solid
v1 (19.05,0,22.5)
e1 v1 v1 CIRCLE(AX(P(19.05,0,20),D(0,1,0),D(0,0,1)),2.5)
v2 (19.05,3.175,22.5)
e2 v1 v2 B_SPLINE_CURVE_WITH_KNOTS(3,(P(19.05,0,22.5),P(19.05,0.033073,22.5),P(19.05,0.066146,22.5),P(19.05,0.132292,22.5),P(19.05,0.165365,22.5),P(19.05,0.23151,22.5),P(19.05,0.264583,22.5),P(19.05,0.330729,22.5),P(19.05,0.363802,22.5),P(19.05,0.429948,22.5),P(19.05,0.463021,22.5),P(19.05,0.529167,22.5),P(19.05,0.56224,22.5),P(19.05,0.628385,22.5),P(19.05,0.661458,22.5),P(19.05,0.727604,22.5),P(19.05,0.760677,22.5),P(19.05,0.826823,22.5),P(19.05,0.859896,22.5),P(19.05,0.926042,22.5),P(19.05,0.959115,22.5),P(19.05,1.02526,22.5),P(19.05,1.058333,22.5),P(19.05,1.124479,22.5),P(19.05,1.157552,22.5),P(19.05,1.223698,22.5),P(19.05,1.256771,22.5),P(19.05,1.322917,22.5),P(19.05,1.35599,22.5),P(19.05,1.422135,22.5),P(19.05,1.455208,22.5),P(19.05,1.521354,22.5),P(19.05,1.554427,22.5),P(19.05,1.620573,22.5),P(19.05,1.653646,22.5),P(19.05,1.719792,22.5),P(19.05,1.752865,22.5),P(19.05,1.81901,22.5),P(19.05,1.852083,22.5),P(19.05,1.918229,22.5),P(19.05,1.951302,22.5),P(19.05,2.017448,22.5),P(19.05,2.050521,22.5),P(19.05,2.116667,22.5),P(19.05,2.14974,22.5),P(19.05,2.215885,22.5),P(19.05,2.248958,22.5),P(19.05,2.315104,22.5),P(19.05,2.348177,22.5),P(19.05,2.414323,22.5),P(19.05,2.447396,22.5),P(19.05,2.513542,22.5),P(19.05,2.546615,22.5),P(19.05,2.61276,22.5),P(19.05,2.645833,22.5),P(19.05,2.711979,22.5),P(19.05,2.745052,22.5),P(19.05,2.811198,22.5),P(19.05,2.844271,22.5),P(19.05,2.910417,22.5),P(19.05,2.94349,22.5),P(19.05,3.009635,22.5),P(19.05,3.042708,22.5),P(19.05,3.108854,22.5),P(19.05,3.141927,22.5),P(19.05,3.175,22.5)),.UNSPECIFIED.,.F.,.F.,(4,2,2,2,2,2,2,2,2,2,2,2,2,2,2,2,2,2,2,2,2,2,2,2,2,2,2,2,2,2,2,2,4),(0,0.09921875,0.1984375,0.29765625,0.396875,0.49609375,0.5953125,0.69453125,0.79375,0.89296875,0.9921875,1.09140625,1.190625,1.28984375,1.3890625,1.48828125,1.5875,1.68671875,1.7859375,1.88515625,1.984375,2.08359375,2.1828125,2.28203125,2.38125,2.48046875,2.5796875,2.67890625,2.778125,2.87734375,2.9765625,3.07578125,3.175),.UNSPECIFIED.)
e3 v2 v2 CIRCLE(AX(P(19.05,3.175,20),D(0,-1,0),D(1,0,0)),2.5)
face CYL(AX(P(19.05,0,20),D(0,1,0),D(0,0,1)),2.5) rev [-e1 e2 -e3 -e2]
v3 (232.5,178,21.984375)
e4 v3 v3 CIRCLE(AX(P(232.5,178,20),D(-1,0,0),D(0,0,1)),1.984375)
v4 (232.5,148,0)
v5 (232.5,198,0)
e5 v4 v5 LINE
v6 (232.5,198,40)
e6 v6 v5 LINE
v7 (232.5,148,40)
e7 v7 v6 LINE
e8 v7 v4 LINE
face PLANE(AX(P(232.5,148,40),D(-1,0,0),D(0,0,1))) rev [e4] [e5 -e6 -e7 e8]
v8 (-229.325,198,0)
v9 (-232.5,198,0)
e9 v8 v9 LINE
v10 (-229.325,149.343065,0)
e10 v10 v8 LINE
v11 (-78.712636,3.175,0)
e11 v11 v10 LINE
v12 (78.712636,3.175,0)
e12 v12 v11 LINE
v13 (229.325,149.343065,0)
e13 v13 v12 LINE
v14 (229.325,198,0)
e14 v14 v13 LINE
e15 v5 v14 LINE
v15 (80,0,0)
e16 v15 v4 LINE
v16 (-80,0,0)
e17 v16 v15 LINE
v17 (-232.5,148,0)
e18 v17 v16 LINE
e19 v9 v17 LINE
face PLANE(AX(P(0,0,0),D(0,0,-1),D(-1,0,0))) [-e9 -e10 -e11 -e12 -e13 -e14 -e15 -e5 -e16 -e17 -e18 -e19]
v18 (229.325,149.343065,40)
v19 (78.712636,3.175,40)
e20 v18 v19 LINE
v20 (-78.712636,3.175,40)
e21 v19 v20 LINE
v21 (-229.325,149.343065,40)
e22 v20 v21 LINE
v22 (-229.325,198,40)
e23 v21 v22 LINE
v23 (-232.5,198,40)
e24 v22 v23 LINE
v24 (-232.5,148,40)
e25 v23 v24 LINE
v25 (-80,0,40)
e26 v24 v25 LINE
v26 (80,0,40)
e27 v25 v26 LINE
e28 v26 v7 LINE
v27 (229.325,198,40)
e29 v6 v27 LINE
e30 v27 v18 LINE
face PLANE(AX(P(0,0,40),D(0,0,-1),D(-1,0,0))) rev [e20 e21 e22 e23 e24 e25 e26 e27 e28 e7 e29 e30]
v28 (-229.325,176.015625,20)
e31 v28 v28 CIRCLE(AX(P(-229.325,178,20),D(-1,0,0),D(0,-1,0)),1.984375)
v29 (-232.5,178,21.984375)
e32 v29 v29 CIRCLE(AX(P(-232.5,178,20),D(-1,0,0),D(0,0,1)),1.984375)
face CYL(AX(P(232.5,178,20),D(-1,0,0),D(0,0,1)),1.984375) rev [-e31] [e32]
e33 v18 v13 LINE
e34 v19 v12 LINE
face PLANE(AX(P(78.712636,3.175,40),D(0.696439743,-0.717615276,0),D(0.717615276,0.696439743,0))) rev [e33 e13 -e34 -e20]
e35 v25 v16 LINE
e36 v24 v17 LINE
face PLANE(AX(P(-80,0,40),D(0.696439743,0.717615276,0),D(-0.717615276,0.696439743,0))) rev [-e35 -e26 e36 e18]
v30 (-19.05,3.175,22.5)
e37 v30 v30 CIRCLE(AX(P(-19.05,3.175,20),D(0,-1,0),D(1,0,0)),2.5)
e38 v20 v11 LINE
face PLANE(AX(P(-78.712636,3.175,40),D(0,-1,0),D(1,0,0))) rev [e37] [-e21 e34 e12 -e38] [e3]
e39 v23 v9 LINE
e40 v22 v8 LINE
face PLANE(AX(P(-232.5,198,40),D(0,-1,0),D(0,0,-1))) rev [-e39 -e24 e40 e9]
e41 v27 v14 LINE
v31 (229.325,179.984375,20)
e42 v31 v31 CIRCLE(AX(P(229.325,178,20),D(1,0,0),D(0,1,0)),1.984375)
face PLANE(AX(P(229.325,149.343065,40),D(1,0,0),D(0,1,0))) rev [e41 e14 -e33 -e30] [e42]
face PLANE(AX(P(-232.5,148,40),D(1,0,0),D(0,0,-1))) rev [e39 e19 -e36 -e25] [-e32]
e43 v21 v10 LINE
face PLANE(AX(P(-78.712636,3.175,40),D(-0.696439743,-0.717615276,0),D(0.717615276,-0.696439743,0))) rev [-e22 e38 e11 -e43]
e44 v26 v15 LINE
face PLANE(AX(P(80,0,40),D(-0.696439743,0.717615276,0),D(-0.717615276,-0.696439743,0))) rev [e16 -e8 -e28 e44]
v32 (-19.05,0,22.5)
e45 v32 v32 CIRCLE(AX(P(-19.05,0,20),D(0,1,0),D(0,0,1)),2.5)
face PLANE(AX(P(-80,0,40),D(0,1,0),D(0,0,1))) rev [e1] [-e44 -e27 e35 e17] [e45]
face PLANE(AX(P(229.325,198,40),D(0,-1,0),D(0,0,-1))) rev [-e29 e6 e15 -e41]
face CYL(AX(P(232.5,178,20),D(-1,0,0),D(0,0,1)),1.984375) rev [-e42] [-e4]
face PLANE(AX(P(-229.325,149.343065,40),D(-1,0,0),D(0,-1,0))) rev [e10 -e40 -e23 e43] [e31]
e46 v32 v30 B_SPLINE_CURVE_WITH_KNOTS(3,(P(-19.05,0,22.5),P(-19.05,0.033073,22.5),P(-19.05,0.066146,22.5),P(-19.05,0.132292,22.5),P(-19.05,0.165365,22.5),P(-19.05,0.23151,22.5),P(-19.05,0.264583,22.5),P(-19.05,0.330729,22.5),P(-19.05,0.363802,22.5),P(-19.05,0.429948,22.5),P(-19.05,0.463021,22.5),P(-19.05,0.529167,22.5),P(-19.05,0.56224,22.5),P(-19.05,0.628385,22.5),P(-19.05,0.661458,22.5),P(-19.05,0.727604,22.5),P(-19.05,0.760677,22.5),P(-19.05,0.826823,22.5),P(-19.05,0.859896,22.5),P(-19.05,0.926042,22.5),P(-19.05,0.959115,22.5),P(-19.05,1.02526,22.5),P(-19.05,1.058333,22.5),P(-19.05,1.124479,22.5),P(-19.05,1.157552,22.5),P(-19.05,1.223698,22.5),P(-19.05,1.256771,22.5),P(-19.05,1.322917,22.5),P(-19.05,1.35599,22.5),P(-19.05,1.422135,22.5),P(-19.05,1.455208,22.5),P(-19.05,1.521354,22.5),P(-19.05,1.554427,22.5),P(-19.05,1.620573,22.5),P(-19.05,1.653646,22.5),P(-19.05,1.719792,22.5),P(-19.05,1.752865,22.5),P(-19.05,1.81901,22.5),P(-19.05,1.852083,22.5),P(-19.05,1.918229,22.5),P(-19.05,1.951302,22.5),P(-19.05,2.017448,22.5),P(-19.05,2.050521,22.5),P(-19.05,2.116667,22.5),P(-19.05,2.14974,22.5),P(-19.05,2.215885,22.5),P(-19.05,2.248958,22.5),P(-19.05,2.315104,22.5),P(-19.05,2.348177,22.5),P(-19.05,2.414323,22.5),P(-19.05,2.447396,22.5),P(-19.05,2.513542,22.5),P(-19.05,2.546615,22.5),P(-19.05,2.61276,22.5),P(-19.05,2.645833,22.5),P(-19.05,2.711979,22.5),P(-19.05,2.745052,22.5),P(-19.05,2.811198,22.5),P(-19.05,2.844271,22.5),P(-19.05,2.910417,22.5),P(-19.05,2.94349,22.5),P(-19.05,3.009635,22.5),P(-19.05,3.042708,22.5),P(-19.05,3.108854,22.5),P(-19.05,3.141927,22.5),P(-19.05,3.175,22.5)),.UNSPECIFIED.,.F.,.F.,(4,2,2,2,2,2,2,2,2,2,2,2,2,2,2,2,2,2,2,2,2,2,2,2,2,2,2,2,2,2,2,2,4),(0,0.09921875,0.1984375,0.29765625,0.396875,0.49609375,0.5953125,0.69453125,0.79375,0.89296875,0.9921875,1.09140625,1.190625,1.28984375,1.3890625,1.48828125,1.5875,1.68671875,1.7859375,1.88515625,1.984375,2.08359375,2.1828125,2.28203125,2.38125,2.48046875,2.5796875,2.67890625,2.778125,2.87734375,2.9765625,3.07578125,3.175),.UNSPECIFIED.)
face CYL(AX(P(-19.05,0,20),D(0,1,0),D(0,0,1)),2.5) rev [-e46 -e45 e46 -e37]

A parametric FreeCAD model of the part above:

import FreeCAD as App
import Part
import Sketcher
from FreeCAD import Vector
Q = App.Units.Quantity

doc = App.newDocument("Part")
body = doc.addObject("PartDesign::Body", "Body")

# Sketch on XY plane
sketch1 = body.newObject("Sketcher::SketchObject", "Sketch")
sketch1.AttachmentSupport = (doc.getObject("XY_Plane"), [""])
sketch1.MapMode = "FlatFace"
sketch1.addGeometry(Part.LineSegment(Vector(-80, 0, 0), Vector(80, 0, 0)), False)
sketch1.addGeometry(Part.LineSegment(Vector(80, 0, 0), Vector(232.5, 148, 0)), False)
sketch1.addGeometry(Part.LineSegment(Vector(232.5, 148, 0), Vector(232.5, 198, 0)), False)
sketch1.addGeometry(Part.LineSegment(Vector(232.5, 198, 0), Vector(229.3, 198, 0)), False)
sketch1.addGeometry(Part.LineSegment(Vector(229.3, 198, 0), Vector(229.3, 149.3, 0)), False)
sketch1.addGeometry(Part.LineSegment(Vector(229.3, 149.3, 0), Vector(78.7, 3.2, 0)), False)
sketch1.addGeometry(Part.LineSegment(Vector(78.7, 3.2, 0), Vector(-78.7, 3.2, 0)), False)
sketch1.addGeometry(Part.LineSegment(Vector(-78.7, 3.2, 0), Vector(-229.3, 149.3, 0)), False)
sketch1.addGeometry(Part.LineSegment(Vector(-229.3, 149.3, 0), Vector(-229.3, 198, 0)), False)
sketch1.addGeometry(Part.LineSegment(Vector(-229.3, 198, 0), Vector(-232.5, 198, 0)), False)
sketch1.addGeometry(Part.LineSegment(Vector(-232.5, 198, 0), Vector(-232.5, 148, 0)), False)
sketch1.addGeometry(Part.LineSegment(Vector(-232.5, 148, 0), Vector(-80, 0, 0)), False)
sketch1.addConstraint(Sketcher.Constraint("Coincident", 0, 2, 1, 1))
sketch1.addConstraint(Sketcher.Constraint("Coincident", 1, 2, 2, 1))
sketch1.addConstraint(Sketcher.Constraint("Coincident", 2, 2, 3, 1))
sketch1.addConstraint(Sketcher.Constraint("Coincident", 3, 2, 4, 1))
sketch1.addConstraint(Sketcher.Constraint("Coincident", 4, 2, 5, 1))
sketch1.addConstraint(Sketcher.Constraint("Coincident", 5, 2, 6, 1))
sketch1.addConstraint(Sketcher.Constraint("Coincident", 6, 2, 7, 1))
sketch1.addConstraint(Sketcher.Constraint("Coincident", 7, 2, 8, 1))
sketch1.addConstraint(Sketcher.Constraint("Coincident", 8, 2, 9, 1))
sketch1.addConstraint(Sketcher.Constraint("Coincident", 9, 2, 10, 1))
sketch1.addConstraint(Sketcher.Constraint("Coincident", 10, 2, 11, 1))
sketch1.addConstraint(Sketcher.Constraint("Coincident", 11, 2, 0, 1))
sketch1.addConstraint(Sketcher.Constraint("Horizontal", 0))
sketch1.addConstraint(Sketcher.Constraint("Vertical", 2))
sketch1.addConstraint(Sketcher.Constraint("Horizontal", 3))
sketch1.addConstraint(Sketcher.Constraint("Vertical", 4))
sketch1.addConstraint(Sketcher.Constraint("Horizontal", 6))
sketch1.addConstraint(Sketcher.Constraint("Vertical", 8))
sketch1.addConstraint(Sketcher.Constraint("Horizontal", 9))
sketch1.addConstraint(Sketcher.Constraint("Vertical", 10))
sketch1.addConstraint(Sketcher.Constraint("Symmetric", 0, 2, 11, 2, -1, 1))
sketch1.addConstraint(Sketcher.Constraint("Symmetric", 4, 2, 7, 2, -2))
sketch1.addConstraint(Sketcher.Constraint("Symmetric", 2, 2, 9, 2, -2))
sketch1.addConstraint(Sketcher.Constraint("Parallel", 1, 5))
sketch1.addConstraint(Sketcher.Constraint("Parallel", 7, 11))
sketch1.addConstraint(Sketcher.Constraint("Horizontal", 1, 2, 10, 2))
sketch1.addConstraint(Sketcher.Constraint("DistanceX", 0, 1, 0, 2, Q("160 mm")))
sketch1.addConstraint(Sketcher.Constraint("DistanceY", 2, 1, 2, 2, Q("50 mm")))
sketch1.addConstraint(Sketcher.Constraint("DistanceY", -1, 1, 1, 2, Q("148 mm")))
sketch1.addConstraint(Sketcher.Constraint("DistanceX", -1, 1, 1, 2, Q("232.5 mm")))
sketch1.addConstraint(Sketcher.Constraint("DistanceX", 3, 2, 3, 1, Q("3.175 mm")))
sketch1.addConstraint(Sketcher.Constraint("DistanceY", -1, 1, 5, 2, Q("3.175 mm")))
sketch1.addConstraint(Sketcher.Constraint("DistanceX", 6, 2, 6, 1, Q("157.425272 mm")))
pad1 = body.newObject("PartDesign::Pad", "Pad")
pad1.Profile = sketch1
pad1.Length = 40

# Sketch on XZ plane
sketch2 = body.newObject("Sketcher::SketchObject", "Sketch001")
sketch2.AttachmentSupport = (doc.getObject("XZ_Plane"), [""])
sketch2.MapMode = "FlatFace"
sketch2.AttachmentOffset = App.Placement(Vector(0, 0, -3.175), App.Rotation())
sketch2.addGeometry(Part.Circle(Vector(-19.1, 20, 0), Vector(0, 0, 1), 2.5), False)
sketch2.addGeometry(Part.Circle(Vector(19.1, 20, 0), Vector(0, 0, 1), 2.5), False)
sketch2.addConstraint(Sketcher.Constraint("Equal", 0, 1))
sketch2.addConstraint(Sketcher.Constraint("Symmetric", 0, 3, 1, 3, -2))
sketch2.addConstraint(Sketcher.Constraint("Diameter", 0, Q("5 mm")))
sketch2.addConstraint(Sketcher.Constraint("DistanceY", -1, 1, 0, 3, Q("20 mm")))
sketch2.addConstraint(Sketcher.Constraint("DistanceX", 0, 3, 1, 3, Q("38.1 mm")))
pocket1 = body.newObject("PartDesign::Pocket", "Pocket")
pocket1.Profile = sketch2
pocket1.Type = "ThroughAll"
pocket1.Midplane = True

# Sketch on YZ plane
sketch3 = body.newObject("Sketcher::SketchObject", "Sketch002")
sketch3.AttachmentSupport = (doc.getObject("YZ_Plane"), [""])
sketch3.MapMode = "FlatFace"
sketch3.AttachmentOffset = App.Placement(Vector(0, 0, -232.5), App.Rotation())
sketch3.addGeometry(Part.Circle(Vector(178, 20, 0), Vector(0, 0, 1), 2), False)
sketch3.addConstraint(Sketcher.Constraint("DistanceX", -1, 1, 0, 3, Q("178 mm")))
sketch3.addConstraint(Sketcher.Constraint("DistanceY", -1, 1, 0, 3, Q("20 mm")))
sketch3.addConstraint(Sketcher.Constraint("Diameter", 0, Q("3.96875 mm")))
pocket2 = body.newObject("PartDesign::Pocket", "Pocket001")
pocket2.Profile = sketch3
pocket2.Type = "ThroughAll"
pocket2.Midplane = True

doc.recompute()
